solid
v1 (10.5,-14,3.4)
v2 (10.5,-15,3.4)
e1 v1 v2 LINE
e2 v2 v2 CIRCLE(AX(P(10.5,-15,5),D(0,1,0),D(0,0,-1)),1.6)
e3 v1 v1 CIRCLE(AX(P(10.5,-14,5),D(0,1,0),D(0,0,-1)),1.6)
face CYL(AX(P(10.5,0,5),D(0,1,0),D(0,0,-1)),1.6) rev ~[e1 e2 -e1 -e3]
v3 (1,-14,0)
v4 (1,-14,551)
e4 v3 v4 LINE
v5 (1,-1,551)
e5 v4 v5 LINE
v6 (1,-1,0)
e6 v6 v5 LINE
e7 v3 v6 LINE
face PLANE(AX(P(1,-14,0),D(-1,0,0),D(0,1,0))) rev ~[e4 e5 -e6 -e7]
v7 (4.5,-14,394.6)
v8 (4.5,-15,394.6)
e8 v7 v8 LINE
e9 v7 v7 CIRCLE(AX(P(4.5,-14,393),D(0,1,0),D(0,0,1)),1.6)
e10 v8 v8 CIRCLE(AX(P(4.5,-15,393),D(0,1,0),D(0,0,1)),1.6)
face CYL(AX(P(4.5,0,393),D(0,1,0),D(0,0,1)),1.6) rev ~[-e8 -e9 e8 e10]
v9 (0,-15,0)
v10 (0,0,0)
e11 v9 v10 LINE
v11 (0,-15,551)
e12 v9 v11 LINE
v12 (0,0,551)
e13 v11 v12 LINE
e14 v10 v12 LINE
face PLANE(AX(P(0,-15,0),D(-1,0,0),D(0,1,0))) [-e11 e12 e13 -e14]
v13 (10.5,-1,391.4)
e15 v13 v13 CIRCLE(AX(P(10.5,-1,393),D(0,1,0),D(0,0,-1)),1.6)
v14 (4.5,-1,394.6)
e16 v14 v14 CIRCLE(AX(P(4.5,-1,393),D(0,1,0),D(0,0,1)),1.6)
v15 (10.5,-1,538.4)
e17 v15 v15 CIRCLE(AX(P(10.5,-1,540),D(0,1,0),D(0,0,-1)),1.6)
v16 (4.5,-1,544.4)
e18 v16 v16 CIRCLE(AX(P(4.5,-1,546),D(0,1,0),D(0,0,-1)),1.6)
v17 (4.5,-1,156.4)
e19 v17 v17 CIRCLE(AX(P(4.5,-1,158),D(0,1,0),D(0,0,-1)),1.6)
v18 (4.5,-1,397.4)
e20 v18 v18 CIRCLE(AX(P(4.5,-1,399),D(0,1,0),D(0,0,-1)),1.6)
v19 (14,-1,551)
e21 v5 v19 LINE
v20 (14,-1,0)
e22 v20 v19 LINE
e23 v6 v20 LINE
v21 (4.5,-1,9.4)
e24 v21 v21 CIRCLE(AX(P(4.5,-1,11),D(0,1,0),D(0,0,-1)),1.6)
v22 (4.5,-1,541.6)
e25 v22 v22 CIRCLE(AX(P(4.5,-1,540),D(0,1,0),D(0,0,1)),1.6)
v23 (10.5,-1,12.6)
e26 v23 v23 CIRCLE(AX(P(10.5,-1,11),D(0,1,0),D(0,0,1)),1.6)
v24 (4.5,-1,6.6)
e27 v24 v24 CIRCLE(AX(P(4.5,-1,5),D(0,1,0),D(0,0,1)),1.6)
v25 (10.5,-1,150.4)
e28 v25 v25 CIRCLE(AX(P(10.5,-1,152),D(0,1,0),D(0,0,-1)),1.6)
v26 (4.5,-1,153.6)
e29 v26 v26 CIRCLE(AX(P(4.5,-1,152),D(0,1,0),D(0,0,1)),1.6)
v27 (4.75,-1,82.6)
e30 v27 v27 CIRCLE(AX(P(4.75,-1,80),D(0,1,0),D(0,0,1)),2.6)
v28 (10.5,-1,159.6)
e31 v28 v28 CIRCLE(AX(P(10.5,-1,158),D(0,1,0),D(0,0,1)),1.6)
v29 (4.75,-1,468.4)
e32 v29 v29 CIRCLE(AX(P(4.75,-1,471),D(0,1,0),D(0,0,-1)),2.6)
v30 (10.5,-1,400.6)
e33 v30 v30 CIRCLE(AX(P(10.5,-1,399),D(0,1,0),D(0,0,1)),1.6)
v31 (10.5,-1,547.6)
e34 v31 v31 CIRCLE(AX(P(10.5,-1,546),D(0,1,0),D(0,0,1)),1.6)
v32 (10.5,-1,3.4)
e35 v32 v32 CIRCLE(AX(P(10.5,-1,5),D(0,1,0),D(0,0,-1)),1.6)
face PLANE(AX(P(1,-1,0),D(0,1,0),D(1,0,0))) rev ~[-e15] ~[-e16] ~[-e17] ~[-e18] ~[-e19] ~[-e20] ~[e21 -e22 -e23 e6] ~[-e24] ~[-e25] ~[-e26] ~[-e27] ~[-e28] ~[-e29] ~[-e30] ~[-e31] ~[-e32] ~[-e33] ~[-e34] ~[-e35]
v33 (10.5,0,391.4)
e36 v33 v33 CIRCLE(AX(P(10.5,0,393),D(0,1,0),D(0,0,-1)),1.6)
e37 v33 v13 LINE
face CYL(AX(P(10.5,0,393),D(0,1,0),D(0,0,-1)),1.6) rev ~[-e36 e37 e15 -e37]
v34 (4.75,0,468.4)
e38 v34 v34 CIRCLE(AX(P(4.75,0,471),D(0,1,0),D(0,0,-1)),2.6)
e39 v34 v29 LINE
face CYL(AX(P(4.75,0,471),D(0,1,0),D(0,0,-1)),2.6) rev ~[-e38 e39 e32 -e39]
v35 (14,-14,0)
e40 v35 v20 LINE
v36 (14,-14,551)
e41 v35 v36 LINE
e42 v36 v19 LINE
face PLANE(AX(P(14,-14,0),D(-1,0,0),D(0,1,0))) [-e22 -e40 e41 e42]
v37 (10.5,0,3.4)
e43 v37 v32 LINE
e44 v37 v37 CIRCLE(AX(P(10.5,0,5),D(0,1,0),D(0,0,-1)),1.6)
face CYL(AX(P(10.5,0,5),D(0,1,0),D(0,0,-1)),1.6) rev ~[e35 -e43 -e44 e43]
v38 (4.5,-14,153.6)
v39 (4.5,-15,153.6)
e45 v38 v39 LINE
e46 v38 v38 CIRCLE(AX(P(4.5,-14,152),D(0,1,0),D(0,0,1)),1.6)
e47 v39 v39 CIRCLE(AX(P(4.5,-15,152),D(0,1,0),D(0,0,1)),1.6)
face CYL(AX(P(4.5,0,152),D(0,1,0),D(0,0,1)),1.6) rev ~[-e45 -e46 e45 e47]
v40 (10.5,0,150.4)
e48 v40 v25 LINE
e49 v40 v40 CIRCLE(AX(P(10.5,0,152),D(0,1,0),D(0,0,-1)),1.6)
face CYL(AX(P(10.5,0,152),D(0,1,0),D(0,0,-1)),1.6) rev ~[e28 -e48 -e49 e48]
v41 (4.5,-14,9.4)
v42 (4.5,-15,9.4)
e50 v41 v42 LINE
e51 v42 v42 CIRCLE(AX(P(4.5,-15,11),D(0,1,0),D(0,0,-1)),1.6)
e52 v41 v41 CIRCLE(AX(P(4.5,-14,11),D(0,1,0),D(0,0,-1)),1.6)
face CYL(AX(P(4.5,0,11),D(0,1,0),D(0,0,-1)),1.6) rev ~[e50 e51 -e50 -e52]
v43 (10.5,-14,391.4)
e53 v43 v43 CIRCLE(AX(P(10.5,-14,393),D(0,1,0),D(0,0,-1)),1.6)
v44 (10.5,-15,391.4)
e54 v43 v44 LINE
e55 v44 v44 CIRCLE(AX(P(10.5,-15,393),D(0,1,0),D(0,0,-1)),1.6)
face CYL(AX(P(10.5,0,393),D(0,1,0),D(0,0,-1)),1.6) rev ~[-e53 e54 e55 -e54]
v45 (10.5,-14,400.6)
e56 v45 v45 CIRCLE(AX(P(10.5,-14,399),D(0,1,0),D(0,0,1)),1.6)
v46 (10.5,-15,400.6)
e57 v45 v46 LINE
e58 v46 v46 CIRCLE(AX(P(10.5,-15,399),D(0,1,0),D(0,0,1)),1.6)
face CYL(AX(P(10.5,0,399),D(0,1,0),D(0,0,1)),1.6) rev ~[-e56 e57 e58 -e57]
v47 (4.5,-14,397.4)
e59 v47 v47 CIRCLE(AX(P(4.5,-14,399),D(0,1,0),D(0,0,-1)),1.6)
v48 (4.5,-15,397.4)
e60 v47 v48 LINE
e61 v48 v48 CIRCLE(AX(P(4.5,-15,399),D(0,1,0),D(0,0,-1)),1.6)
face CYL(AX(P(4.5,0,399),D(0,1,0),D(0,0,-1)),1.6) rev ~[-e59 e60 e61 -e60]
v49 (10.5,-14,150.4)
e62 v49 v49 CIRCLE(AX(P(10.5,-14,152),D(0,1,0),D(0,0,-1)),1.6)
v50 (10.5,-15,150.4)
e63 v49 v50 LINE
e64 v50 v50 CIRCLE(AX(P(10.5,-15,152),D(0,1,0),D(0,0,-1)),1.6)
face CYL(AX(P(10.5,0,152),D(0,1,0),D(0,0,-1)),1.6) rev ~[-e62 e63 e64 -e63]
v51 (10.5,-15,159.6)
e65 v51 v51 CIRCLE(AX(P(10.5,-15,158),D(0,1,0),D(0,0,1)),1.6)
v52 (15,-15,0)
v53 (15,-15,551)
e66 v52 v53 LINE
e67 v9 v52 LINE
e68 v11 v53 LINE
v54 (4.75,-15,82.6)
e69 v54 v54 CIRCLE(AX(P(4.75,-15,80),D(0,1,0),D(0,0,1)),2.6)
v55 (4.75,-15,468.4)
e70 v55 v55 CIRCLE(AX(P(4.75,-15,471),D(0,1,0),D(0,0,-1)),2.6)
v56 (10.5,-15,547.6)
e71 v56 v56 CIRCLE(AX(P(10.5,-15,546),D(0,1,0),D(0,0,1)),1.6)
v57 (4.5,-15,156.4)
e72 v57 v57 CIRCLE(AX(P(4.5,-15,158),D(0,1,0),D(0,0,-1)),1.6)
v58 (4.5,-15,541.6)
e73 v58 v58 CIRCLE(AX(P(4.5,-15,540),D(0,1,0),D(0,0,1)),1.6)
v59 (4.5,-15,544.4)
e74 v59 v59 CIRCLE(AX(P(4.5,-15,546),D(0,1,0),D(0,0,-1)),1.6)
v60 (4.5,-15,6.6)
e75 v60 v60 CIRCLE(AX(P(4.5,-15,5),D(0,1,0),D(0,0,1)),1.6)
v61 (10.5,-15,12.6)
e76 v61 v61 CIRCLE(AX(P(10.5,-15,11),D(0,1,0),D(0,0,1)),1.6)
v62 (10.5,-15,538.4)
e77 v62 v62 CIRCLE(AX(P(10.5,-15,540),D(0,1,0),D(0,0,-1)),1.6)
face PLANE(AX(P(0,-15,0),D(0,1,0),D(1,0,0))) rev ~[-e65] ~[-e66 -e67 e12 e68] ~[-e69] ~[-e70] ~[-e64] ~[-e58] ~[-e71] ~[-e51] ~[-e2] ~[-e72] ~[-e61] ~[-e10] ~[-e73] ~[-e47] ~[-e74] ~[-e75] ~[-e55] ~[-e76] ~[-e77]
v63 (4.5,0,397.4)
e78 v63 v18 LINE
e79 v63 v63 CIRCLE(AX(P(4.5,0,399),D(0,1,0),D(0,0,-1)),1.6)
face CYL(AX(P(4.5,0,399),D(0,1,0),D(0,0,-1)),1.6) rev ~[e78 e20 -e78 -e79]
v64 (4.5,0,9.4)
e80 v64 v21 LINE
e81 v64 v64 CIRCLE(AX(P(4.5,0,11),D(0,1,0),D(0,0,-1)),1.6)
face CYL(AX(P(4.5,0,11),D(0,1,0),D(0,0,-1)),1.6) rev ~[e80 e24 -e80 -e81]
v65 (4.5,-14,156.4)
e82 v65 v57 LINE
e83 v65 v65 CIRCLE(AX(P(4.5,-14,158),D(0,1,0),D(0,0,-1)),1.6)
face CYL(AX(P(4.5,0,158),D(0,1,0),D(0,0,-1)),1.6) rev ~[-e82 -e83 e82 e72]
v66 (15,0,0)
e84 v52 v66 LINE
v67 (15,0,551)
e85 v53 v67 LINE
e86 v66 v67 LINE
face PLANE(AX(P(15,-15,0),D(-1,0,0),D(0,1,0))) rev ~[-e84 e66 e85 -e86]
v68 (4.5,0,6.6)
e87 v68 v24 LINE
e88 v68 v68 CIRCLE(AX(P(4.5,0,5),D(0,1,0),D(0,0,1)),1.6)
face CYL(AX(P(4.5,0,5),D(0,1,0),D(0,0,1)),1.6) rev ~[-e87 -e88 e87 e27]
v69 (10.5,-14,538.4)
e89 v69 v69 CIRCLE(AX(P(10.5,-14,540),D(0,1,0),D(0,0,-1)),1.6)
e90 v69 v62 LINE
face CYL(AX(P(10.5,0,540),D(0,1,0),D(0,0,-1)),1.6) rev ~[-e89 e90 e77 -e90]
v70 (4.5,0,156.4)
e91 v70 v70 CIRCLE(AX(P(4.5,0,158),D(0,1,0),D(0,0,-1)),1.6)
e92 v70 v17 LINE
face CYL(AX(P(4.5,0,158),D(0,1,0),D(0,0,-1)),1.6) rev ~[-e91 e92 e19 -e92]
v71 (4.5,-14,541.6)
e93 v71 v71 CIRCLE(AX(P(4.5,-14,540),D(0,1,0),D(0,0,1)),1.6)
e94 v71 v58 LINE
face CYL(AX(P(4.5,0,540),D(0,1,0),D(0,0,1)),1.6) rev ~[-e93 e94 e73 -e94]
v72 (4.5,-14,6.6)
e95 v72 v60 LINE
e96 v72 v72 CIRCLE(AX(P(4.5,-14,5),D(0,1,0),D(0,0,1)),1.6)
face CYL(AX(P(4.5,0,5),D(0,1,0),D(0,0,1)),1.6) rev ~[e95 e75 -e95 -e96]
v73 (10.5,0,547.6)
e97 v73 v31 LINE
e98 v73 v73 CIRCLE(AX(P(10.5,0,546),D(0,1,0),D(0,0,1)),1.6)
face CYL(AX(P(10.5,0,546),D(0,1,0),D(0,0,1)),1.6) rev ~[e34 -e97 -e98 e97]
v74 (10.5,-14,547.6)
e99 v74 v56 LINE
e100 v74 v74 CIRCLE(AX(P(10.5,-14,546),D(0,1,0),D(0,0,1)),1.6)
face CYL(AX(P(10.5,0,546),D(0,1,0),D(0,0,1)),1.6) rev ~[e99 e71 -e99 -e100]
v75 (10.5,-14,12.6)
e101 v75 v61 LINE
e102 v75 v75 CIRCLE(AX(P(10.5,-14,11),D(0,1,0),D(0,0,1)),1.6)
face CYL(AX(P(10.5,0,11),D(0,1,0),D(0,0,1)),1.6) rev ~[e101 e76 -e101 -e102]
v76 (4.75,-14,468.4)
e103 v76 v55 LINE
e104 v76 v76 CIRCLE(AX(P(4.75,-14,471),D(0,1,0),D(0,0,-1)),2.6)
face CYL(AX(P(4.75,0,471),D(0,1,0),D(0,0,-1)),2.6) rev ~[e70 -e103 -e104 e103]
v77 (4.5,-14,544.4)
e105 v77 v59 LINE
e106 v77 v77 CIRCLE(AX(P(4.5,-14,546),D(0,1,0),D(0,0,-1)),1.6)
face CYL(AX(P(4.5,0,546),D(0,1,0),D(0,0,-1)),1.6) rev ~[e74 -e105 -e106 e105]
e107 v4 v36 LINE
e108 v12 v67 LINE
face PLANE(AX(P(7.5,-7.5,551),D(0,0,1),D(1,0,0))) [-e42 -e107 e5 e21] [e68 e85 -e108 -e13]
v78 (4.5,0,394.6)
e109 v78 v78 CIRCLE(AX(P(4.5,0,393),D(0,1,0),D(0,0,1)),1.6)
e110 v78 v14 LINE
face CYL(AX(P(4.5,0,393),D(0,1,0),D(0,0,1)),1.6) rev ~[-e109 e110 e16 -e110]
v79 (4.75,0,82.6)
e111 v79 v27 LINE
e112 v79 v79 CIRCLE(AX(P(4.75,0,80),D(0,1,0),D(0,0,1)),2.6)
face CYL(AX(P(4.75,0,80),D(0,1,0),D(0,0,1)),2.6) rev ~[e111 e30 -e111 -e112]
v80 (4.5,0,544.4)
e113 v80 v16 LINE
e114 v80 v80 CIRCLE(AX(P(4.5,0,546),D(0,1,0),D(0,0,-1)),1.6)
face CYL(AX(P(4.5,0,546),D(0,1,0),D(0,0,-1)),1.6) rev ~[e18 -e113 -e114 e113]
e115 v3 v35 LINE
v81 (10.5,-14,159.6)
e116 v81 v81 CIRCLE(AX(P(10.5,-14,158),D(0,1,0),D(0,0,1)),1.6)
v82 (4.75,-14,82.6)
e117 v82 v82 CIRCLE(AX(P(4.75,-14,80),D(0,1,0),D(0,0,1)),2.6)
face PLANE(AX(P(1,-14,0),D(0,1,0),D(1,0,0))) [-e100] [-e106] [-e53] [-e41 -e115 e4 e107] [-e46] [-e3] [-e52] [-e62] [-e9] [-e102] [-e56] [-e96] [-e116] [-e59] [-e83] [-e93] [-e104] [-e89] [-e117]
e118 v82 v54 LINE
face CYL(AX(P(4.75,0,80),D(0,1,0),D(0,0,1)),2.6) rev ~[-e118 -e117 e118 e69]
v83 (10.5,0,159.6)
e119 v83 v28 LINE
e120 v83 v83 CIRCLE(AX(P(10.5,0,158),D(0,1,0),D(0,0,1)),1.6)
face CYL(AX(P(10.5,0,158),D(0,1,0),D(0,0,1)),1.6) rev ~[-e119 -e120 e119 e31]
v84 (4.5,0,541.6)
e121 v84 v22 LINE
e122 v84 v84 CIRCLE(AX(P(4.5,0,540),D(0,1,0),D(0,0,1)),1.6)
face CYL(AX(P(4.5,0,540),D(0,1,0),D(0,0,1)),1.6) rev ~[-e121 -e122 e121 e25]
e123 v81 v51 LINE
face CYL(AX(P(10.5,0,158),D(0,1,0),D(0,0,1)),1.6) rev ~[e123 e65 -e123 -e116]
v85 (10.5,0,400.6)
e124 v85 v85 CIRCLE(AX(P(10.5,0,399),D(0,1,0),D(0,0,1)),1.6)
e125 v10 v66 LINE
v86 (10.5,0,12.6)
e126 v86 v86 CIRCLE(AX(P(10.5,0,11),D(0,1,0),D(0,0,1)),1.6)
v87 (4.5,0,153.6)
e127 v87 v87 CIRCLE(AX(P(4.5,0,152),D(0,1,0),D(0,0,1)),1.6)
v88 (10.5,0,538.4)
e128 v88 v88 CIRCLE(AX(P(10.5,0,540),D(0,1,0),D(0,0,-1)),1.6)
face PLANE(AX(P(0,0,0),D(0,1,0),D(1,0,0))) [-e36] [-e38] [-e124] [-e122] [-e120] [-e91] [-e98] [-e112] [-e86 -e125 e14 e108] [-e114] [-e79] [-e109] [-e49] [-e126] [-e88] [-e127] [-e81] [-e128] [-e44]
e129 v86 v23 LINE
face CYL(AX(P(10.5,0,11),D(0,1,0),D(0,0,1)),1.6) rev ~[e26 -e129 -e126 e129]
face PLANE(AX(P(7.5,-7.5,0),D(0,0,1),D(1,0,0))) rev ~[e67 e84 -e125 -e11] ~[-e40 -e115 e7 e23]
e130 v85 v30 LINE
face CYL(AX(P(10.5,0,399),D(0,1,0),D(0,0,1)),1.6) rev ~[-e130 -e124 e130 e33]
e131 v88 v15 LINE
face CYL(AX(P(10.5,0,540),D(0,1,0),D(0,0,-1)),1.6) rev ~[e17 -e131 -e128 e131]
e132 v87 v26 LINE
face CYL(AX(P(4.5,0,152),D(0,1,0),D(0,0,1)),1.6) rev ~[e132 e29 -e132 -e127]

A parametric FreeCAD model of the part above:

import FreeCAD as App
import Part
import Sketcher
from FreeCAD import Vector
Q = App.Units.Quantity


def add_polygon(sketch, points):
    """Adds a closed chain of lines whose ends are joined by coincident constraints."""
    first, n = sketch.GeometryCount, len(points)
    for a, b in zip(points, points[1:] + points[:1]):
        sketch.addGeometry(Part.LineSegment(App.Vector(*a, 0), App.Vector(*b, 0)), False)
    for i in range(n):
        sketch.addConstraint(Sketcher.Constraint("Coincident", first + i, 2, first + (i + 1) % n, 1))

doc = App.newDocument("Part")
body = doc.addObject("PartDesign::Body", "Body")

sketch1 = body.newObject("Sketcher::SketchObject", "Sketch")
sketch1.AttachmentSupport = (doc.getObject("XY_Plane"), [""])
sketch1.MapMode = "FlatFace"
add_polygon(sketch1, [(0, 0), (0, -15), (15, -15), (15, 0)])
add_polygon(sketch1, [(14, -14), (1, -14), (1, -1), (14, -1)])
sketch1.addConstraint([
    Sketcher.Constraint("Vertical", 0),
    Sketcher.Constraint("Horizontal", 1),
    Sketcher.Constraint("Vertical", 2),
    Sketcher.Constraint("Horizontal", 3),
    Sketcher.Constraint("Horizontal", 4),
    Sketcher.Constraint("Vertical", 5),
    Sketcher.Constraint("Horizontal", 6),
    Sketcher.Constraint("Vertical", 7),
    Sketcher.Constraint("Coincident", 3, 2, -1, 1),
    Sketcher.Constraint("Equal", 3, 0),
    Sketcher.Constraint("Equal", 6, 5),
    Sketcher.Constraint("DistanceX", 1, 1, 1, 2, Q("15 mm")),
    Sketcher.Constraint("DistanceX", 4, 2, 4, 1, Q("13 mm")),
    Sketcher.Constraint("DistanceX", -1, 1, 4, 2, Q("1 mm")),
    Sketcher.Constraint("DistanceY", 4, 2, -1, 1, Q("14 mm")),
])
pad1 = body.newObject("PartDesign::Pad", "Pad")
pad1.Profile = sketch1
pad1.Length = 551

sketch2 = body.newObject("Sketcher::SketchObject", "Sketch001")
sketch2.AttachmentSupport = (doc.getObject("XZ_Plane"), [""])
sketch2.MapMode = "FlatFace"
sketch2.addGeometry([
    Part.Circle(Vector(4.5, 5, 0), Vector(0, 0, 1), 1.6),
    Part.Circle(Vector(10.5, 5, 0), Vector(0, 0, 1), 1.6),
    Part.Circle(Vector(10.5, 11, 0), Vector(0, 0, 1), 1.6),
    Part.Circle(Vector(4.5, 11, 0), Vector(0, 0, 1), 1.6),
    Part.Circle(Vector(4.5, 540, 0), Vector(0, 0, 1), 1.6),
    Part.Circle(Vector(10.5, 540, 0), Vector(0, 0, 1), 1.6),
    Part.Circle(Vector(10.5, 546, 0), Vector(0, 0, 1), 1.6),
    Part.Circle(Vector(4.5, 546, 0), Vector(0, 0, 1), 1.6),
    Part.Circle(Vector(4.75, 80, 0), Vector(0, 0, 1), 2.6),
    Part.Circle(Vector(4.5, 152, 0), Vector(0, 0, 1), 1.6),
    Part.Circle(Vector(10.5, 152, 0), Vector(0, 0, 1), 1.6),
    Part.Circle(Vector(10.5, 158, 0), Vector(0, 0, 1), 1.6),
    Part.Circle(Vector(4.5, 158, 0), Vector(0, 0, 1), 1.6),
    Part.Circle(Vector(4.75, 471, 0), Vector(0, 0, 1), 2.6),
    Part.Circle(Vector(4.5, 393, 0), Vector(0, 0, 1), 1.6),
    Part.Circle(Vector(10.5, 393, 0), Vector(0, 0, 1), 1.6),
    Part.Circle(Vector(10.5, 399, 0), Vector(0, 0, 1), 1.6),
    Part.Circle(Vector(4.5, 399, 0), Vector(0, 0, 1), 1.6),
], False)
sketch2.addConstraint([
    Sketcher.Constraint("Equal", 0, 1),
    Sketcher.Constraint("Equal", 1, 2),
    Sketcher.Constraint("Equal", 2, 3),
    Sketcher.Constraint("Equal", 3, 4),
    Sketcher.Constraint("Equal", 4, 5),
    Sketcher.Constraint("Equal", 5, 6),
    Sketcher.Constraint("Equal", 6, 7),
    Sketcher.Constraint("Equal", 7, 9),
    Sketcher.Constraint("Equal", 9, 10),
    Sketcher.Constraint("Equal", 10, 11),
    Sketcher.Constraint("Equal", 11, 12),
    Sketcher.Constraint("Equal", 8, 13),
    Sketcher.Constraint("Equal", 12, 14),
    Sketcher.Constraint("Equal", 14, 15),
    Sketcher.Constraint("Equal", 15, 16),
    Sketcher.Constraint("Equal", 16, 17),
    Sketcher.Constraint("Horizontal", 0, 3, 1, 3),
    Sketcher.Constraint("Horizontal", 2, 3, 3, 3),
    Sketcher.Constraint("Horizontal", 4, 3, 5, 3),
    Sketcher.Constraint("Horizontal", 6, 3, 7, 3),
    Sketcher.Constraint("Horizontal", 9, 3, 10, 3),
    Sketcher.Constraint("Horizontal", 11, 3, 12, 3),
    Sketcher.Constraint("Horizontal", 14, 3, 15, 3),
    Sketcher.Constraint("Horizontal", 16, 3, 17, 3),
    Sketcher.Constraint("Vertical", 1, 3, 2, 3),
    Sketcher.Constraint("Vertical", 0, 3, 3, 3),
    Sketcher.Constraint("Vertical", 3, 3, 4, 3),
    Sketcher.Constraint("Vertical", 2, 3, 5, 3),
    Sketcher.Constraint("Vertical", 5, 3, 6, 3),
    Sketcher.Constraint("Vertical", 4, 3, 7, 3),
    Sketcher.Constraint("Vertical", 7, 3, 9, 3),
    Sketcher.Constraint("Vertical", 6, 3, 10, 3),
    Sketcher.Constraint("Vertical", 10, 3, 11, 3),
    Sketcher.Constraint("Vertical", 9, 3, 12, 3),
    Sketcher.Constraint("Vertical", 8, 3, 13, 3),
    Sketcher.Constraint("Vertical", 12, 3, 14, 3),
    Sketcher.Constraint("Vertical", 11, 3, 15, 3),
    Sketcher.Constraint("Vertical", 15, 3, 16, 3),
    Sketcher.Constraint("Vertical", 14, 3, 17, 3),
    Sketcher.Constraint("Diameter", 0, Q("3.2 mm")),
    Sketcher.Constraint("Diameter", 8, Q("5.2 mm")),
    Sketcher.Constraint("DistanceY", -1, 1, 0, 3, Q("5 mm")),
    Sketcher.Constraint("DistanceY", -1, 1, 2, 3, Q("11 mm")),
    Sketcher.Constraint("DistanceY", -1, 1, 4, 3, Q("540 mm")),
    Sketcher.Constraint("DistanceY", -1, 1, 6, 3, Q("546 mm")),
    Sketcher.Constraint("DistanceY", -1, 1, 8, 3, Q("80 mm")),
    Sketcher.Constraint("DistanceY", -1, 1, 9, 3, Q("152 mm")),
    Sketcher.Constraint("DistanceY", -1, 1, 11, 3, Q("158 mm")),
    Sketcher.Constraint("DistanceY", -1, 1, 13, 3, Q("471 mm")),
    Sketcher.Constraint("DistanceY", -1, 1, 14, 3, Q("393 mm")),
    Sketcher.Constraint("DistanceY", -1, 1, 16, 3, Q("399 mm")),
    Sketcher.Constraint("DistanceX", 0, 3, 1, 3, Q("6 mm")),
    Sketcher.Constraint("DistanceX", -1, 1, 0, 3, Q("4.5 mm")),
    Sketcher.Constraint("DistanceX", -1, 1, 8, 3, Q("4.75 mm")),
])
pocket1 = body.newObject("PartDesign::Pocket", "Pocket")
pocket1.Profile = sketch2
pocket1.Type = "ThroughAll"
pocket1.Reversed = True

doc.recompute()
